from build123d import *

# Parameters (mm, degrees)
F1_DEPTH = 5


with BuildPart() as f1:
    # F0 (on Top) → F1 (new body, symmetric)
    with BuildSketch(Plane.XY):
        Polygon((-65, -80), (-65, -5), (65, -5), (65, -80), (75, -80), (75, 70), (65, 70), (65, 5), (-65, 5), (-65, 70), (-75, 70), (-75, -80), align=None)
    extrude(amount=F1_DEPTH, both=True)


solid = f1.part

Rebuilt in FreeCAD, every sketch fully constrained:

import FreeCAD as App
import Part
import Sketcher
from FreeCAD import Vector


def add_polygon(sketch, points):
    """Adds a closed chain of lines whose ends are joined by coincident constraints."""
    first, n = sketch.GeometryCount, len(points)
    for a, b in zip(points, points[1:] + points[:1]):
        sketch.addGeometry(Part.LineSegment(App.Vector(*a, 0), App.Vector(*b, 0)), False)
    for i in range(n):
        sketch.addConstraint(Sketcher.Constraint("Coincident", first + i, 2, first + (i + 1) % n, 1))

doc = App.newDocument("Part")
body = doc.addObject("PartDesign::Body", "Body")

sketch1 = body.newObject("Sketcher::SketchObject", "Sketch")
sketch1.AttachmentSupport = (doc.getObject("XY_Plane"), [""])
sketch1.MapMode = "FlatFace"
add_polygon(sketch1, [(-65, -80), (-65, -5), (65, -5), (65, -80), (75, -80), (75, 70), (65, 70), (65, 5), (-65, 5), (-65, 70), (-75, 70), (-75, -80)])
sketch1.addConstraint(Sketcher.Constraint("Vertical", 0))
sketch1.addConstraint(Sketcher.Constraint("Horizontal", 1))
sketch1.addConstraint(Sketcher.Constraint("Vertical", 2))
sketch1.addConstraint(Sketcher.Constraint("Horizontal", 3))
sketch1.addConstraint(Sketcher.Constraint("Vertical", 4))
sketch1.addConstraint(Sketcher.Constraint("Horizontal", 5))
sketch1.addConstraint(Sketcher.Constraint("Vertical", 6))
sketch1.addConstraint(Sketcher.Constraint("Horizontal", 7))
sketch1.addConstraint(Sketcher.Constraint("Vertical", 8))
sketch1.addConstraint(Sketcher.Constraint("Horizontal", 9))
sketch1.addConstraint(Sketcher.Constraint("Vertical", 10))
sketch1.addConstraint(Sketcher.Constraint("Horizontal", 11))
sketch1.addConstraint(Sketcher.Constraint("Symmetric", 0, 2, 6, 2, -1, 1))
sketch1.addConstraint(Sketcher.Constraint("Symmetric", 5, 2, 8, 2, -2))
sketch1.addConstraint(Sketcher.Constraint("Symmetric", 3, 2, 10, 2, -2))
sketch1.addConstraint(Sketcher.Constraint("Vertical", 2, 2, 5, 2))
sketch1.addConstraint(Sketcher.Constraint("DistanceX", 1, 1, 1, 2, 130.0))
sketch1.addConstraint(Sketcher.Constraint("DistanceX", 3, 1, 3, 2, 10.0))
sketch1.addConstraint(Sketcher.Constraint("DistanceY", 0, 1, 0, 2, 75.0))
sketch1.addConstraint(Sketcher.Constraint("DistanceY", 4, 1, 4, 2, 150.0))
sketch1.addConstraint(Sketcher.Constraint("DistanceY", 6, 2, 6, 1, 65.0))
pad1 = body.newObject("PartDesign::Pad", "Pad")
pad1.Profile = sketch1
pad1.Length = 10
pad1.Midplane = True

doc.recompute()
